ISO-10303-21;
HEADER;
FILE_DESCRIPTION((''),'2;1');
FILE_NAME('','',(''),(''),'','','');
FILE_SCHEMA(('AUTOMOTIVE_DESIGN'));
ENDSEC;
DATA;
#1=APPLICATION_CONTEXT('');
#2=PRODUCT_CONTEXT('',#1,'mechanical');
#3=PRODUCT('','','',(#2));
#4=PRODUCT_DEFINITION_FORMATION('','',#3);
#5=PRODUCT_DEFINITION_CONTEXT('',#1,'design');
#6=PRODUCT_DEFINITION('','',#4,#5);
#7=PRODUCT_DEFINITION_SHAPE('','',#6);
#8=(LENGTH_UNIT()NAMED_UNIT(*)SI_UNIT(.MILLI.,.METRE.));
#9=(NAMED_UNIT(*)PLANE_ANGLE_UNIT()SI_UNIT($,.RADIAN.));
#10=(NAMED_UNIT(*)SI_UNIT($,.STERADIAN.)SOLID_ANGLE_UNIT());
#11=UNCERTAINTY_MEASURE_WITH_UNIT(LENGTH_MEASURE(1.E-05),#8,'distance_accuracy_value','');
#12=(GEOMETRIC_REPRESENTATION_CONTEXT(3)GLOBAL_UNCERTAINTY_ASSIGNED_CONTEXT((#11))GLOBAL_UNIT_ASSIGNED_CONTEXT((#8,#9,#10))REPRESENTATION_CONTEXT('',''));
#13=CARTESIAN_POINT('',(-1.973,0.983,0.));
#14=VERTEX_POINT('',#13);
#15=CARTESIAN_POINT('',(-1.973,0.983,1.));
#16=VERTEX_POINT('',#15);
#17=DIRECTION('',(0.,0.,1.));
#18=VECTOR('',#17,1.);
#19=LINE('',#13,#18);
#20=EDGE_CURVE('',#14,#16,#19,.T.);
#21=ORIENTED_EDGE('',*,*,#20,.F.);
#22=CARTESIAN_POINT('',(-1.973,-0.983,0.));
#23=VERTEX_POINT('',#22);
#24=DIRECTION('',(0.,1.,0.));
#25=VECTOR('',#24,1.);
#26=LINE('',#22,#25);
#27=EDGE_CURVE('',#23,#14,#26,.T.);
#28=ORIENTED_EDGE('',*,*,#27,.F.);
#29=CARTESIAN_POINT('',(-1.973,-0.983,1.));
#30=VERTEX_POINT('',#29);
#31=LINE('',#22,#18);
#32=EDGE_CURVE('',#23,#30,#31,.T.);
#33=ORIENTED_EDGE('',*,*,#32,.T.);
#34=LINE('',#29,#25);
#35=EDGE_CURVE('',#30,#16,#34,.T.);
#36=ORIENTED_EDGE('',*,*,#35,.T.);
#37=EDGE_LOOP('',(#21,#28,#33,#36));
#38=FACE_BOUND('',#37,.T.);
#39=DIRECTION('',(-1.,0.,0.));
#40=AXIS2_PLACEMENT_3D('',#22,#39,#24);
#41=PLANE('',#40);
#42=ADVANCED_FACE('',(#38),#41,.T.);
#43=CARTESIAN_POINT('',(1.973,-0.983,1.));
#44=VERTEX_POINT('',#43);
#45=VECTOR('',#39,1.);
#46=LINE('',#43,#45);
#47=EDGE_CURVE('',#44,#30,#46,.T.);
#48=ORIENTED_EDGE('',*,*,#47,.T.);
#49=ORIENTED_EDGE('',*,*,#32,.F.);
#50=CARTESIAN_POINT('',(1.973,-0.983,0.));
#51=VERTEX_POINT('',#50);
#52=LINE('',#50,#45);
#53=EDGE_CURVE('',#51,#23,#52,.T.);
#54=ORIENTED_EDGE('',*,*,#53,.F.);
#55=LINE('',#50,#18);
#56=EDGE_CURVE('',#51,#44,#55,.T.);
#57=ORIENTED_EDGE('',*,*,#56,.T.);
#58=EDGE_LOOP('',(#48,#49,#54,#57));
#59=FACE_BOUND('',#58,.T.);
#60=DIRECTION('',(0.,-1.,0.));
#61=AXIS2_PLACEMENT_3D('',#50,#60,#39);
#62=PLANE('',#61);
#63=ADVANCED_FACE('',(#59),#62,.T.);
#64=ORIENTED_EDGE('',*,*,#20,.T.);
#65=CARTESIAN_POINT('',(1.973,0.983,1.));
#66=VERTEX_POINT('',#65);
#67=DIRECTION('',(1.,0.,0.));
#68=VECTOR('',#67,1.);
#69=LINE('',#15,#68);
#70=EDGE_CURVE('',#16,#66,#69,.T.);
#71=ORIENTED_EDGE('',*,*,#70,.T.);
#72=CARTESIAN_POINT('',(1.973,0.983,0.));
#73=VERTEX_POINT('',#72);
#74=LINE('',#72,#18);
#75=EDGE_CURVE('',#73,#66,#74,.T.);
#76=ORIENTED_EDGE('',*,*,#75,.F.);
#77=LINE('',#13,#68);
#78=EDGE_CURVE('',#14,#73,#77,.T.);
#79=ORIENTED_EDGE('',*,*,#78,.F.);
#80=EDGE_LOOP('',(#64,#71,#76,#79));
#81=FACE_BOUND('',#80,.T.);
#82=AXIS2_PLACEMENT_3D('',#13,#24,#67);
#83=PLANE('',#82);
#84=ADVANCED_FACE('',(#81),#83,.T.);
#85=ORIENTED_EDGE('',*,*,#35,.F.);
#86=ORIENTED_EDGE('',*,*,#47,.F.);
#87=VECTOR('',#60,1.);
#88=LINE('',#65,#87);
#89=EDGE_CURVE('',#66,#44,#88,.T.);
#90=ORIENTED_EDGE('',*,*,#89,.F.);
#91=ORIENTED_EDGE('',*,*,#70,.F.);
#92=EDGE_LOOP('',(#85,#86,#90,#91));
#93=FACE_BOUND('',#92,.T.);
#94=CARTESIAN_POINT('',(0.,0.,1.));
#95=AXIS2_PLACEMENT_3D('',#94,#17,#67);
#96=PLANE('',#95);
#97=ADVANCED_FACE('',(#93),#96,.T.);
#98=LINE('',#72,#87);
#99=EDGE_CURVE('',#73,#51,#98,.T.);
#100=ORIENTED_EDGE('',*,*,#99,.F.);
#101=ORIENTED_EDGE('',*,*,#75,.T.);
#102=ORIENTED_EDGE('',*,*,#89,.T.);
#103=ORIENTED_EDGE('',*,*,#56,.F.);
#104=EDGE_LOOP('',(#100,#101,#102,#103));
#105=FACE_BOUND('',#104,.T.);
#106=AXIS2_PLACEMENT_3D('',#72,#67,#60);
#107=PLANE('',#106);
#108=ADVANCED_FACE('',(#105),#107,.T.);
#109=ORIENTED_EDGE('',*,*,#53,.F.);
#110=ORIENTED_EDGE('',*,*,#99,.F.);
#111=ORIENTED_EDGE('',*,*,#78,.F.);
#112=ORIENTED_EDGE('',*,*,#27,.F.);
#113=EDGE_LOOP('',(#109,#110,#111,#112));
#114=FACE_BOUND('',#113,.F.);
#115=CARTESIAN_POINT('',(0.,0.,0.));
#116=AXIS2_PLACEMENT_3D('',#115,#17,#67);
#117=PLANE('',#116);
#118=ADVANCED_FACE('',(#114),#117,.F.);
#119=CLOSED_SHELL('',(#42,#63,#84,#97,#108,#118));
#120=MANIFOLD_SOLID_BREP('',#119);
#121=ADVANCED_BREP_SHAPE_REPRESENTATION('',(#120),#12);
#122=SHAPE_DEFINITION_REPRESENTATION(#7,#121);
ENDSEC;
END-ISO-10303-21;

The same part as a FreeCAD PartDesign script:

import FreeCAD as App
import Part
import Sketcher
from FreeCAD import Vector


def add_polygon(sketch, points):
    """Adds a closed chain of lines whose ends are joined by coincident constraints."""
    first, n = sketch.GeometryCount, len(points)
    for a, b in zip(points, points[1:] + points[:1]):
        sketch.addGeometry(Part.LineSegment(App.Vector(*a, 0), App.Vector(*b, 0)), False)
    for i in range(n):
        sketch.addConstraint(Sketcher.Constraint("Coincident", first + i, 2, first + (i + 1) % n, 1))

doc = App.newDocument("Part")
body = doc.addObject("PartDesign::Body", "Body")

# Sketch on XY plane
sketch1 = body.newObject("Sketcher::SketchObject", "Sketch")
sketch1.AttachmentSupport = (doc.getObject("XY_Plane"), [""])
sketch1.MapMode = "FlatFace"
add_polygon(sketch1, [(2, 1), (-2, 1), (-2, -1), (2, -1)])  # lines 0-3
sketch1.addConstraint([
    Sketcher.Constraint("Horizontal", 0),
    Sketcher.Constraint("Vertical", 1),
    Sketcher.Constraint("Horizontal", 2),
    Sketcher.Constraint("Vertical", 3),
    Sketcher.Constraint("Symmetric", 0, 2, 2, 2, -1, 1),
    Sketcher.Constraint("DistanceX", 0, 2, 0, 1, 3.946),
    Sketcher.Constraint("DistanceY", 1, 2, 1, 1, 1.966),
])
pad1 = body.newObject("PartDesign::Pad", "Pad")
pad1.Profile = sketch1
pad1.Length = 1

doc.recompute()
